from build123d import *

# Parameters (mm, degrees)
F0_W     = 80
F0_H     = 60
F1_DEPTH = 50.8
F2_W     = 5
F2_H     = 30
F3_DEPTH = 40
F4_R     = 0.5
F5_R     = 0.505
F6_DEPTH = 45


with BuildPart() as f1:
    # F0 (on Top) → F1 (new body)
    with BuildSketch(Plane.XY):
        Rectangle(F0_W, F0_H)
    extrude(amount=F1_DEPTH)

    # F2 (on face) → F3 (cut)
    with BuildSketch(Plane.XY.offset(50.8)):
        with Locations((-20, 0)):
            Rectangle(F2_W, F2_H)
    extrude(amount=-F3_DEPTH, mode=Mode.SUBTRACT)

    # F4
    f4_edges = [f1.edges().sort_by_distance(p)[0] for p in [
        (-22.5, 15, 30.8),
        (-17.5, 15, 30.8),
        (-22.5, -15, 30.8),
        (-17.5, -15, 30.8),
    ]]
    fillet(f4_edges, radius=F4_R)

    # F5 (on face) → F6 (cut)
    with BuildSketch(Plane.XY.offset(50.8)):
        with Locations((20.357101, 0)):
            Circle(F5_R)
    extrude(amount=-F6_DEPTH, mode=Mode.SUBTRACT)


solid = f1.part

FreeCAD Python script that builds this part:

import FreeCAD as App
import Part
import Sketcher

V = App.Vector


def edges_at(feature, points):
    """Names of the edges that pass closest to the given points."""
    edges = feature.Shape.Edges
    near = lambda p: min(range(len(edges)), key=lambda i: edges[i].distToShape(Part.Vertex(*p))[0])
    return sorted({f"Edge{near(p) + 1}" for p in points})

doc = App.newDocument("Part")
body = doc.addObject("PartDesign::Body", "Body")

# Sketch on XY plane
sketch1 = body.newObject("Sketcher::SketchObject", "Sketch")
sketch1.AttachmentSupport = (doc.getObject("XY_Plane"), [""])
sketch1.MapMode = "FlatFace"
sketch1.addGeometry([
    Part.LineSegment(V(-40, 30, 0), V(-40, -30, 0)),
    Part.LineSegment(V(-40, -30, 0), V(40, -30, 0)),
    Part.LineSegment(V(40, -30, 0), V(40, 30, 0)),
    Part.LineSegment(V(40, 30, 0), V(-40, 30, 0)),
], False)
sketch1.addConstraint([
    Sketcher.Constraint("Coincident", 0, 2, 1, 1),
    Sketcher.Constraint("Coincident", 1, 2, 2, 1),
    Sketcher.Constraint("Coincident", 2, 2, 3, 1),
    Sketcher.Constraint("Coincident", 3, 2, 0, 1),
    Sketcher.Constraint("Vertical", 0),
    Sketcher.Constraint("Horizontal", 1),
    Sketcher.Constraint("Vertical", 2),
    Sketcher.Constraint("Horizontal", 3),
    Sketcher.Constraint("Symmetric", 0, 2, 2, 2, -1, 1),
    Sketcher.Constraint("DistanceX", 1, 1, 1, 2, 80.0),
    Sketcher.Constraint("DistanceY", 0, 2, 0, 1, 60.0),
])
pad1 = body.newObject("PartDesign::Pad", "Pad")
pad1.Profile = sketch1
pad1.Length = 50.8

# Sketch on XY plane
sketch2 = body.newObject("Sketcher::SketchObject", "Sketch001")
sketch2.AttachmentSupport = (doc.getObject("XY_Plane"), [""])
sketch2.MapMode = "FlatFace"
sketch2.AttachmentOffset = App.Placement(V(0, 0, 50.8), App.Rotation())
sketch2.addGeometry([
    Part.LineSegment(V(-22, 15, 0), V(-22, -15, 0)),
    Part.LineSegment(V(-22, -15, 0), V(-18, -15, 0)),
    Part.LineSegment(V(-18, -15, 0), V(-18, 15, 0)),
    Part.LineSegment(V(-18, 15, 0), V(-22, 15, 0)),
], False)
sketch2.addConstraint([
    Sketcher.Constraint("Coincident", 0, 2, 1, 1),
    Sketcher.Constraint("Coincident", 1, 2, 2, 1),
    Sketcher.Constraint("Coincident", 2, 2, 3, 1),
    Sketcher.Constraint("Coincident", 3, 2, 0, 1),
    Sketcher.Constraint("Vertical", 0),
    Sketcher.Constraint("Horizontal", 1),
    Sketcher.Constraint("Vertical", 2),
    Sketcher.Constraint("Horizontal", 3),
    Sketcher.Constraint("DistanceX", 1, 1, 1, 2, 5.0),
    Sketcher.Constraint("DistanceY", 0, 2, 0, 1, 30.0),
    Sketcher.Constraint("DistanceY", 0, 2, -1, 1, 15.0),
    Sketcher.Constraint("DistanceX", 0, 2, -1, 1, 22.5),
])
pocket1 = body.newObject("PartDesign::Pocket", "Pocket")
pocket1.Profile = sketch2
pocket1.Length = 40
doc.recompute()

fillet = body.newObject("PartDesign::Fillet", "Fillet")
fillet.Base = (pocket1, edges_at(pocket1, [
    (-22.5, 15, 30.8),
    (-17.5, 15, 30.8),
    (-22.5, -15, 30.8),
    (-17.5, -15, 30.8),
]))
fillet.Radius = 0.5

# Sketch on XY plane
sketch3 = body.newObject("Sketcher::SketchObject", "Sketch002")
sketch3.AttachmentSupport = (doc.getObject("XY_Plane"), [""])
sketch3.MapMode = "FlatFace"
sketch3.AttachmentOffset = App.Placement(V(0, 0, 50.8), App.Rotation())
sketch3.addGeometry(Part.Circle(V(20.4, 0, 0), V(0, 0, 1), 0.5), False)
sketch3.addConstraint([
    Sketcher.Constraint("PointOnObject", 0, 3, -1),
    Sketcher.Constraint("Diameter", 0, 1.01),
    Sketcher.Constraint("DistanceX", -1, 1, 0, 3, 20.357101),
])
pocket2 = body.newObject("PartDesign::Pocket", "Pocket001")
pocket2.Profile = sketch3
pocket2.Length = 45

doc.recompute()
